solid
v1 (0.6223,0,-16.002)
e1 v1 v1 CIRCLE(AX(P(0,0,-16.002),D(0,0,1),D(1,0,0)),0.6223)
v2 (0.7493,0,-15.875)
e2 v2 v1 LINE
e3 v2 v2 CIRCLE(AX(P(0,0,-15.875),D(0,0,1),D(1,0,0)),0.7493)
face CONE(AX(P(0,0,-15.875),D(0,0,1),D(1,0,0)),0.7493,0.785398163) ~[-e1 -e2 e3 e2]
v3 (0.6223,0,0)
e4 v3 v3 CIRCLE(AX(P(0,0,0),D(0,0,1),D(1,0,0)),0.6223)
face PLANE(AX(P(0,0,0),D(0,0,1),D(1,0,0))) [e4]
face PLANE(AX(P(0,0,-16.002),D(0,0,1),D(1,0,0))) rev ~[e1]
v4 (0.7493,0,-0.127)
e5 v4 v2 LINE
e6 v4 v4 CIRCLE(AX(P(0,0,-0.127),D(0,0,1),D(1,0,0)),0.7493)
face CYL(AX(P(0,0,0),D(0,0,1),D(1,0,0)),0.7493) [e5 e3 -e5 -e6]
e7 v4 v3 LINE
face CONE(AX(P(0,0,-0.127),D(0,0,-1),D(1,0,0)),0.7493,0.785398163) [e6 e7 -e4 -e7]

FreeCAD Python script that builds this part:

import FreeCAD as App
import Part
import Sketcher

V = App.Vector
Q = App.Units.Quantity


def edges_at(feature, points):
    """Names of the edges that pass closest to the given points."""
    edges = feature.Shape.Edges
    near = lambda p: min(range(len(edges)), key=lambda i: edges[i].distToShape(Part.Vertex(*p))[0])
    return sorted({f"Edge{near(p) + 1}" for p in points})

doc = App.newDocument("Part")
body = doc.addObject("PartDesign::Body", "Body")

# Sketch on XY plane
sketch1 = body.newObject("Sketcher::SketchObject", "Sketch")
sketch1.AttachmentSupport = (doc.getObject("XY_Plane"), [""])
sketch1.MapMode = "FlatFace"
sketch1.addGeometry(Part.Circle(V(0, 0, 0), V(0, 0, 1), 0.7), False)
sketch1.addConstraint([
    Sketcher.Constraint("Coincident", 0, 3, -1, 1),
    Sketcher.Constraint("Diameter", 0, Q("0.059 in")),
])
pad1 = body.newObject("PartDesign::Pad", "Pad")
pad1.Profile = sketch1
pad1.Length = Q("0.63 in")
pad1.Reversed = True
doc.recompute()

chamfer = body.newObject("PartDesign::Chamfer", "Chamfer")
chamfer.Base = (pad1, edges_at(pad1, [(-0.749, 0, 0), (-0.749, 0, -16.002)]))
chamfer.Size = Q("0.005 in")

doc.recompute()
